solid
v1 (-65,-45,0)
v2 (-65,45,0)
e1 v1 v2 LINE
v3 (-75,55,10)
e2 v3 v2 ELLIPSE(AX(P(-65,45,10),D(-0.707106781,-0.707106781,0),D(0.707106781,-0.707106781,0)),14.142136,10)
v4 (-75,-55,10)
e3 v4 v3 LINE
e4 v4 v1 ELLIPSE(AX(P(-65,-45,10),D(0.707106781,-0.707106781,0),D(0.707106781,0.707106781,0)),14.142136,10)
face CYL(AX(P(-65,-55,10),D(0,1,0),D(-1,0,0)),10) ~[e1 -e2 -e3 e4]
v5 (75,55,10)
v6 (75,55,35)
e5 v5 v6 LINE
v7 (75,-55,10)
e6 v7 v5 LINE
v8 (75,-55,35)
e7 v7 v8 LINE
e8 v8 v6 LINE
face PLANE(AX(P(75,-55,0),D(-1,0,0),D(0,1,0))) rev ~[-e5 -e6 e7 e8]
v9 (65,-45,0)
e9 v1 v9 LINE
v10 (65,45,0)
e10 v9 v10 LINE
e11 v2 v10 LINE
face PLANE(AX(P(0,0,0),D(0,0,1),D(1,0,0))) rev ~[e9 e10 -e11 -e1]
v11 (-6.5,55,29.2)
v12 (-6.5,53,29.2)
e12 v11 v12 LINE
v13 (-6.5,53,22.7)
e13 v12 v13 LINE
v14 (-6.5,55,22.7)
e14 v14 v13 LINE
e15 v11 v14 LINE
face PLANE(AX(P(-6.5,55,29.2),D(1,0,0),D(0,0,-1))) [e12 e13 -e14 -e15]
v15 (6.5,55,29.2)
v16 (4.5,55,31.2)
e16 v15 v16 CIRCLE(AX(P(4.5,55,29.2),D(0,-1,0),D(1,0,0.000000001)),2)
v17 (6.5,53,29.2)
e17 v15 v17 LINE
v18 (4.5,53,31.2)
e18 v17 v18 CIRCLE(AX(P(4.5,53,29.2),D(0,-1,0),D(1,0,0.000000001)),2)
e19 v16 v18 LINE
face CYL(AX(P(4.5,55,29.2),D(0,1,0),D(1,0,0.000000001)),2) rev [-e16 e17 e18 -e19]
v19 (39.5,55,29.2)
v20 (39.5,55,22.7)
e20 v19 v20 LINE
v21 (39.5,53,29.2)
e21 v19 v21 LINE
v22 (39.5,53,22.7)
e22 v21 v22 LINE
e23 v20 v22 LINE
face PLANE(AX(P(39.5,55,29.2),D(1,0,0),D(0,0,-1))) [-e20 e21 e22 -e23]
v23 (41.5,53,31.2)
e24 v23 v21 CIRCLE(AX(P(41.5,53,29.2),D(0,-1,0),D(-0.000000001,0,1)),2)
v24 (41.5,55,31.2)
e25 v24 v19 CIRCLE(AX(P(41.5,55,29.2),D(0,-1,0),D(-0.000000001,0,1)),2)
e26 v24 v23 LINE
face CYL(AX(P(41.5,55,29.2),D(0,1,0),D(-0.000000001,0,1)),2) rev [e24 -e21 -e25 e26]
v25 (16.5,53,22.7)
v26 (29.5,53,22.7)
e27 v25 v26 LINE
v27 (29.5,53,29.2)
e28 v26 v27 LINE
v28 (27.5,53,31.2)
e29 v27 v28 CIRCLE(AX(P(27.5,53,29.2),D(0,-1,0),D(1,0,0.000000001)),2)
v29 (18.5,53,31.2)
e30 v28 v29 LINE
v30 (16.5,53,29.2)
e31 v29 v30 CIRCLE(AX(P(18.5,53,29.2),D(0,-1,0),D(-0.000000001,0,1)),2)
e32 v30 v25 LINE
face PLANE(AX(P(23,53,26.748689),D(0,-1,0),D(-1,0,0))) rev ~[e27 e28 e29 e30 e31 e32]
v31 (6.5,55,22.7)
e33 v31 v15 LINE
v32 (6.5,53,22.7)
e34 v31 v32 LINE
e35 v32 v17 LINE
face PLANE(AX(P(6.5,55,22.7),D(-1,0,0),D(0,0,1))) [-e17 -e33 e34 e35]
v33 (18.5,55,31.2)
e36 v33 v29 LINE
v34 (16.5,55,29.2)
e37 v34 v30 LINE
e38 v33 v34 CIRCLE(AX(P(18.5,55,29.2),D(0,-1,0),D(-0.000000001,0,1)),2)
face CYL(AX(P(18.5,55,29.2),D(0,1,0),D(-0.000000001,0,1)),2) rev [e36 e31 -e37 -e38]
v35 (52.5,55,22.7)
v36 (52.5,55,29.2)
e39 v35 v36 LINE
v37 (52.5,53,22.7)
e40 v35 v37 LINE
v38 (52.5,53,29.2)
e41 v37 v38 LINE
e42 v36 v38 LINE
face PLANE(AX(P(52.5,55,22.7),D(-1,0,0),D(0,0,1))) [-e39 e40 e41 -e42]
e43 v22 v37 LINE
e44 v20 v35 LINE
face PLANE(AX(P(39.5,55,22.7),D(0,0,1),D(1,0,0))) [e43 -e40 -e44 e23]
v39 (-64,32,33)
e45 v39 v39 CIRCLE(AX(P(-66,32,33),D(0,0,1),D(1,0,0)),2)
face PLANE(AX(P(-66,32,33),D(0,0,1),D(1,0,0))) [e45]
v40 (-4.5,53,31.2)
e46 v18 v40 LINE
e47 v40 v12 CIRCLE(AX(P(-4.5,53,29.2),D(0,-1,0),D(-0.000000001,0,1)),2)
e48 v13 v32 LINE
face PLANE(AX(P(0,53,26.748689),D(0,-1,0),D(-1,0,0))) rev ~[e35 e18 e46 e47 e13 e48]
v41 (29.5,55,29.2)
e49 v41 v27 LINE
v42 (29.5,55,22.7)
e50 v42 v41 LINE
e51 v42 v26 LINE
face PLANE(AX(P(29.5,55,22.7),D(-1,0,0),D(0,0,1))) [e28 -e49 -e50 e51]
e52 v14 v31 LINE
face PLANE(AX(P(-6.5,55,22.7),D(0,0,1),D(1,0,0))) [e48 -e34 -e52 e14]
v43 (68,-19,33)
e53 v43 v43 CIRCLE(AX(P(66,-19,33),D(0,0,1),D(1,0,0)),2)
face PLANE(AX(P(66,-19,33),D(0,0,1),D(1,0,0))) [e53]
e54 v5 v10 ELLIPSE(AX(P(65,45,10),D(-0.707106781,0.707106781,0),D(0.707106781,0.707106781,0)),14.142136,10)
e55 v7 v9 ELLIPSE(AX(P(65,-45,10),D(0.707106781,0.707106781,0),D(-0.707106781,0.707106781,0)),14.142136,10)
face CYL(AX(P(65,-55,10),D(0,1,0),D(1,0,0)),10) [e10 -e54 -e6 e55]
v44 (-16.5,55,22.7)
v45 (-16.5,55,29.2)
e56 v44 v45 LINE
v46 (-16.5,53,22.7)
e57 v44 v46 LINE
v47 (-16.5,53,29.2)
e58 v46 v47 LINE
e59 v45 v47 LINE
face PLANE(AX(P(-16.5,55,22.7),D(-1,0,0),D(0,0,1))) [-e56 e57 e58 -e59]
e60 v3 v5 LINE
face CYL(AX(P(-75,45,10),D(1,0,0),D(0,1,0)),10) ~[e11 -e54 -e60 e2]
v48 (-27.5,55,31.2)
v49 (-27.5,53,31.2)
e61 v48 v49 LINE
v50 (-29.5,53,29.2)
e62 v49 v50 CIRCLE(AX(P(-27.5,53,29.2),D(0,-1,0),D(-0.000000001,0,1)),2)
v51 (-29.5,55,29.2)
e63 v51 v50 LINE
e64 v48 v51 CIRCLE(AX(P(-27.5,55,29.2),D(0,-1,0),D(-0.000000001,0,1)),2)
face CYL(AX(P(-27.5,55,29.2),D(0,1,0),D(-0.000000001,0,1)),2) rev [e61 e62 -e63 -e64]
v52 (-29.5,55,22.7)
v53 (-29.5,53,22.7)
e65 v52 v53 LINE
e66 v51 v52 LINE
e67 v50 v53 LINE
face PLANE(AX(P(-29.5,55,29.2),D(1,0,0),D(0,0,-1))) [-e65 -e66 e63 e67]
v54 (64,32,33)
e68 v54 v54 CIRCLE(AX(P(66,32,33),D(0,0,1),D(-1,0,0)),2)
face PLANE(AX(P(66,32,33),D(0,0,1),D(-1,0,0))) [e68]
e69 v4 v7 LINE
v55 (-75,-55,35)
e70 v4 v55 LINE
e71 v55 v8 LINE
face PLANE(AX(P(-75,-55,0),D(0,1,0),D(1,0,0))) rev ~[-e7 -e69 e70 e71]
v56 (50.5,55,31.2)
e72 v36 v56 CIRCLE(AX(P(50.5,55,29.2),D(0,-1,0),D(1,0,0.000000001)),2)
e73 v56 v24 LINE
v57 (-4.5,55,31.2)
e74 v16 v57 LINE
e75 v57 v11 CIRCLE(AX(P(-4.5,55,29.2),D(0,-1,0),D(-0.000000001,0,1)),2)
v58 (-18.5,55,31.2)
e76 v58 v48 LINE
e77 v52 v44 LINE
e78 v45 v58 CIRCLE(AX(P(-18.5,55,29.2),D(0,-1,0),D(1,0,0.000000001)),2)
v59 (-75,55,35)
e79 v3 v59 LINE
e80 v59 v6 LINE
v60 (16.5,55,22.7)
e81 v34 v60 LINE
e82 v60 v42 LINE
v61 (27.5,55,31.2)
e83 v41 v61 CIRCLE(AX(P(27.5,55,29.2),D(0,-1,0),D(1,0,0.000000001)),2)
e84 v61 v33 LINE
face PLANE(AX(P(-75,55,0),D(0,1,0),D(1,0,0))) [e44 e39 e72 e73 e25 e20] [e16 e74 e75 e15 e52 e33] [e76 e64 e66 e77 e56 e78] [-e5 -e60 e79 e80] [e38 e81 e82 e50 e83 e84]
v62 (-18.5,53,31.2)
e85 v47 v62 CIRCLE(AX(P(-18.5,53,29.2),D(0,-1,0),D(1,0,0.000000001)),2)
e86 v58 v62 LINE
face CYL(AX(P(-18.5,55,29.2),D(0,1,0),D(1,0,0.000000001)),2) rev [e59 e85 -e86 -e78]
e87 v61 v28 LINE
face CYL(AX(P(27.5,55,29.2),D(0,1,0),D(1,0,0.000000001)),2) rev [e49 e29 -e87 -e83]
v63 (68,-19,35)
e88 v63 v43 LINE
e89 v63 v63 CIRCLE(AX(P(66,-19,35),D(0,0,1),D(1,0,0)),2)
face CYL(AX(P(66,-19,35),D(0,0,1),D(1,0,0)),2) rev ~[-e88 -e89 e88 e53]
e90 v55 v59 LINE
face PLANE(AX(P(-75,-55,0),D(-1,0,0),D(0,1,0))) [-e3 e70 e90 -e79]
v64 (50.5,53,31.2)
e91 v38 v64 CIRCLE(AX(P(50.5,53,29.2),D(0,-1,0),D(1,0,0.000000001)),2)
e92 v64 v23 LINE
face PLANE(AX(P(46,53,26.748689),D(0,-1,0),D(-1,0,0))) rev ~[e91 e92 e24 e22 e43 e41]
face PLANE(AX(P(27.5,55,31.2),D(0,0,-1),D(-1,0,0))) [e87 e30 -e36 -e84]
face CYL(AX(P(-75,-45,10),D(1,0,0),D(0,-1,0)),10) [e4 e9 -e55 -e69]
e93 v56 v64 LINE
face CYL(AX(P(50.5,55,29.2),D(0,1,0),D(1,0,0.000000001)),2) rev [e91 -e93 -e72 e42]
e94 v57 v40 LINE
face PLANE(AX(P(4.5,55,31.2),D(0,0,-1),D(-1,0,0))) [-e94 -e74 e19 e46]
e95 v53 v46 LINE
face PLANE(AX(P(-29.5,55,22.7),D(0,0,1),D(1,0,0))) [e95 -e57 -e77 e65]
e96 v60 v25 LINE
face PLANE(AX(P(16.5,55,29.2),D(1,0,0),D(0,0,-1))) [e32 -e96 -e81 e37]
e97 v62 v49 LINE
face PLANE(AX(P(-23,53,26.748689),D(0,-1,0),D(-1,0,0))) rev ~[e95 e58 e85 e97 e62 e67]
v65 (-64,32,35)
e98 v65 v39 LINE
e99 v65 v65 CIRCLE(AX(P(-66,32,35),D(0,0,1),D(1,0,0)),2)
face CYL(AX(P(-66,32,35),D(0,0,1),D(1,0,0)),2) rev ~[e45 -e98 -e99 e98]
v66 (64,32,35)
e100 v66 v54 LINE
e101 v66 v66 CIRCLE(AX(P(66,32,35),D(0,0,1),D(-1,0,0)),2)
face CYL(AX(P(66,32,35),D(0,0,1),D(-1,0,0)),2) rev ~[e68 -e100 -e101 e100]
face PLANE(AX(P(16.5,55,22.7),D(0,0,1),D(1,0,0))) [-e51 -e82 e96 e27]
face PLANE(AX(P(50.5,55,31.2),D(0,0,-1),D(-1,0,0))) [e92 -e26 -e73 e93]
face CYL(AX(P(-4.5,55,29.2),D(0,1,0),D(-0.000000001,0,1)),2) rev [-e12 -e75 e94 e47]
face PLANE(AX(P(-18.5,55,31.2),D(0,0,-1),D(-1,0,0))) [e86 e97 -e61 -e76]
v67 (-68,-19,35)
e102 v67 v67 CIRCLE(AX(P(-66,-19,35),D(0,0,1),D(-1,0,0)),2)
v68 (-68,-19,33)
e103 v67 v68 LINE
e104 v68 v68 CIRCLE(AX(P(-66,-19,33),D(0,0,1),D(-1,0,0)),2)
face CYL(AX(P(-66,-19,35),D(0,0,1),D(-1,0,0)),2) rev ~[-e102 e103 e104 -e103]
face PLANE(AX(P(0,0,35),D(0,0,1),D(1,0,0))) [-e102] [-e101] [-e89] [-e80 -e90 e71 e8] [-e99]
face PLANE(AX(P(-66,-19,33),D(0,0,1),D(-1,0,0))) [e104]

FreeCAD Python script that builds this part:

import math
import FreeCAD as App
import Part
import Sketcher
Q = App.Units.Quantity


def edges_at(feature, points):
    """Names of the edges that pass closest to the given points."""
    edges = feature.Shape.Edges
    near = lambda p: min(range(len(edges)), key=lambda i: edges[i].distToShape(Part.Vertex(*p))[0])
    return sorted({f"Edge{near(p) + 1}" for p in points})

doc = App.newDocument("Part")
body = doc.addObject("PartDesign::Body", "Body")

# Sketch on XY plane
sketch1 = doc.addObject("Sketcher::SketchObject", "Sketch")
body.addObject(sketch1)
sketch1.AttachmentSupport = (doc.XY_Plane, [""])
sketch1.MapMode = "FlatFace"
sketch1.addGeometry(Part.LineSegment(App.Vector(-75, 55, 0), App.Vector(-75, -55, 0)), False)
sketch1.addGeometry(Part.LineSegment(App.Vector(-75, -55, 0), App.Vector(75, -55, 0)), False)
sketch1.addGeometry(Part.LineSegment(App.Vector(75, -55, 0), App.Vector(75, 55, 0)), False)
sketch1.addGeometry(Part.LineSegment(App.Vector(75, 55, 0), App.Vector(-75, 55, 0)), False)
sketch1.addConstraint(Sketcher.Constraint("Coincident", 0, 2, 1, 1))
sketch1.addConstraint(Sketcher.Constraint("Coincident", 1, 2, 2, 1))
sketch1.addConstraint(Sketcher.Constraint("Coincident", 2, 2, 3, 1))
sketch1.addConstraint(Sketcher.Constraint("Coincident", 3, 2, 0, 1))
sketch1.addConstraint(Sketcher.Constraint("Vertical", 0))
sketch1.addConstraint(Sketcher.Constraint("Horizontal", 1))
sketch1.addConstraint(Sketcher.Constraint("Vertical", 2))
sketch1.addConstraint(Sketcher.Constraint("Horizontal", 3))
sketch1.addConstraint(Sketcher.Constraint("Symmetric", 0, 2, 2, 2, -1, 1))
sketch1.addConstraint(Sketcher.Constraint("DistanceX", 1, 1, 1, 2, Q("150 mm")))
sketch1.addConstraint(Sketcher.Constraint("DistanceY", 0, 2, 0, 1, Q("110 mm")))
pad1 = doc.addObject("PartDesign::Pad", "Pad")
body.addObject(pad1)
pad1.Profile = sketch1
pad1.Length = 35
doc.recompute()

fillet = doc.addObject("PartDesign::Fillet", "Fillet")
body.addObject(fillet)
fillet.Base = (pad1, edges_at(pad1, [
    (0, 55, 0),
    (75, 0, 0),
    (0, -55, 0),
    (-75, 0, 0),
]))
fillet.Radius = 10

# Sketch on XY plane
sketch2 = doc.addObject("Sketcher::SketchObject", "Sketch001")
body.addObject(sketch2)
sketch2.AttachmentSupport = (doc.XY_Plane, [""])
sketch2.MapMode = "FlatFace"
sketch2.AttachmentOffset = App.Placement(App.Vector(0, 0, 35), App.Rotation())
sketch2.addGeometry(Part.Circle(App.Vector(-66, 32, 0), App.Vector(0, 0, 1), 2), False)
sketch2.addGeometry(Part.Circle(App.Vector(-66, -19, 0), App.Vector(0, 0, 1), 2), False)
sketch2.addGeometry(Part.Circle(App.Vector(66, -19, 0), App.Vector(0, 0, 1), 2), False)
sketch2.addGeometry(Part.Circle(App.Vector(66, 32, 0), App.Vector(0, 0, 1), 2), False)
sketch2.addConstraint(Sketcher.Constraint("Equal", 0, 1))
sketch2.addConstraint(Sketcher.Constraint("Equal", 1, 2))
sketch2.addConstraint(Sketcher.Constraint("Equal", 2, 3))
sketch2.addConstraint(Sketcher.Constraint("Symmetric", 1, 3, 2, 3, -2))
sketch2.addConstraint(Sketcher.Constraint("Symmetric", 0, 3, 3, 3, -2))
sketch2.addConstraint(Sketcher.Constraint("Vertical", 0, 3, 1, 3))
sketch2.addConstraint(Sketcher.Constraint("Diameter", 0, Q("4 mm")))
sketch2.addConstraint(Sketcher.Constraint("DistanceX", 0, 3, -1, 1, Q("66 mm")))
sketch2.addConstraint(Sketcher.Constraint("DistanceY", -1, 1, 0, 3, Q("32 mm")))
sketch2.addConstraint(Sketcher.Constraint("DistanceY", 1, 3, -1, 1, Q("19 mm")))
pocket1 = doc.addObject("PartDesign::Pocket", "Pocket")
body.addObject(pocket1)
pocket1.Profile = sketch2
pocket1.Length = 2

# Sketch on XZ plane
sketch3 = doc.addObject("Sketcher::SketchObject", "Sketch002")
body.addObject(sketch3)
sketch3.AttachmentSupport = (doc.XZ_Plane, [""])
sketch3.MapMode = "FlatFace"
sketch3.AttachmentOffset = App.Placement(App.Vector(0, 0, -55), App.Rotation())
sketch3.addGeometry(Part.LineSegment(App.Vector(6.5, 22.7, 0), App.Vector(-6.5, 22.7, 0)), False)
sketch3.addGeometry(Part.LineSegment(App.Vector(-6.5, 22.7, 0), App.Vector(-6.5, 29.2, 0)), False)
sketch3.addGeometry(Part.ArcOfCircle(Part.Circle(App.Vector(-4.5, 29.2, 0), App.Vector(0, 0, 1), 2), math.radians(90), math.radians(180)), False)
sketch3.addGeometry(Part.LineSegment(App.Vector(-4.5, 31.2, 0), App.Vector(4.5, 31.2, 0)), False)
sketch3.addGeometry(Part.ArcOfCircle(Part.Circle(App.Vector(4.5, 29.2, 0), App.Vector(0, 0, 1), 2), math.radians(0), math.radians(90)), False)
sketch3.addGeometry(Part.LineSegment(App.Vector(6.5, 29.2, 0), App.Vector(6.5, 22.7, 0)), False)
sketch3.addGeometry(Part.LineSegment(App.Vector(29.5, 22.7, 0), App.Vector(16.5, 22.7, 0)), False)
sketch3.addGeometry(Part.LineSegment(App.Vector(16.5, 22.7, 0), App.Vector(16.5, 29.2, 0)), False)
sketch3.addGeometry(Part.ArcOfCircle(Part.Circle(App.Vector(18.5, 29.2, 0), App.Vector(0, 0, 1), 2), math.radians(90), math.radians(180)), False)
sketch3.addGeometry(Part.LineSegment(App.Vector(18.5, 31.2, 0), App.Vector(27.5, 31.2, 0)), False)
sketch3.addGeometry(Part.ArcOfCircle(Part.Circle(App.Vector(27.5, 29.2, 0), App.Vector(0, 0, 1), 2), math.radians(0), math.radians(90)), False)
sketch3.addGeometry(Part.LineSegment(App.Vector(29.5, 29.2, 0), App.Vector(29.5, 22.7, 0)), False)
sketch3.addGeometry(Part.LineSegment(App.Vector(52.5, 22.7, 0), App.Vector(39.5, 22.7, 0)), False)
sketch3.addGeometry(Part.LineSegment(App.Vector(39.5, 22.7, 0), App.Vector(39.5, 29.2, 0)), False)
sketch3.addGeometry(Part.ArcOfCircle(Part.Circle(App.Vector(41.5, 29.2, 0), App.Vector(0, 0, 1), 2), math.radians(90), math.radians(180)), False)
sketch3.addGeometry(Part.LineSegment(App.Vector(41.5, 31.2, 0), App.Vector(50.5, 31.2, 0)), False)
sketch3.addGeometry(Part.ArcOfCircle(Part.Circle(App.Vector(50.5, 29.2, 0), App.Vector(0, 0, 1), 2), math.radians(0), math.radians(90)), False)
sketch3.addGeometry(Part.LineSegment(App.Vector(52.5, 29.2, 0), App.Vector(52.5, 22.7, 0)), False)
sketch3.addGeometry(Part.LineSegment(App.Vector(-16.5, 22.7, 0), App.Vector(-29.5, 22.7, 0)), False)
sketch3.addGeometry(Part.LineSegment(App.Vector(-29.5, 22.7, 0), App.Vector(-29.5, 29.2, 0)), False)
sketch3.addGeometry(Part.ArcOfCircle(Part.Circle(App.Vector(-27.5, 29.2, 0), App.Vector(0, 0, 1), 2), math.radians(90), math.radians(180)), False)
sketch3.addGeometry(Part.LineSegment(App.Vector(-27.5, 31.2, 0), App.Vector(-18.5, 31.2, 0)), False)
sketch3.addGeometry(Part.ArcOfCircle(Part.Circle(App.Vector(-18.5, 29.2, 0), App.Vector(0, 0, 1), 2), math.radians(0), math.radians(90)), False)
sketch3.addGeometry(Part.LineSegment(App.Vector(-16.5, 29.2, 0), App.Vector(-16.5, 22.7, 0)), False)
sketch3.addConstraint(Sketcher.Constraint("Coincident", 0, 2, 1, 1))
sketch3.addConstraint(Sketcher.Constraint("Tangent", 1, 2, 2, 2))
sketch3.addConstraint(Sketcher.Constraint("Tangent", 2, 1, 3, 1))
sketch3.addConstraint(Sketcher.Constraint("Tangent", 3, 2, 4, 2))
sketch3.addConstraint(Sketcher.Constraint("Tangent", 4, 1, 5, 1))
sketch3.addConstraint(Sketcher.Constraint("Coincident", 5, 2, 0, 1))
sketch3.addConstraint(Sketcher.Constraint("Coincident", 6, 2, 7, 1))
sketch3.addConstraint(Sketcher.Constraint("Tangent", 7, 2, 8, 2))
sketch3.addConstraint(Sketcher.Constraint("Tangent", 8, 1, 9, 1))
sketch3.addConstraint(Sketcher.Constraint("Tangent", 9, 2, 10, 2))
sketch3.addConstraint(Sketcher.Constraint("Tangent", 10, 1, 11, 1))
sketch3.addConstraint(Sketcher.Constraint("Coincident", 11, 2, 6, 1))
sketch3.addConstraint(Sketcher.Constraint("Coincident", 12, 2, 13, 1))
sketch3.addConstraint(Sketcher.Constraint("Tangent", 13, 2, 14, 2))
sketch3.addConstraint(Sketcher.Constraint("Tangent", 14, 1, 15, 1))
sketch3.addConstraint(Sketcher.Constraint("Tangent", 15, 2, 16, 2))
sketch3.addConstraint(Sketcher.Constraint("Tangent", 16, 1, 17, 1))
sketch3.addConstraint(Sketcher.Constraint("Coincident", 17, 2, 12, 1))
sketch3.addConstraint(Sketcher.Constraint("Coincident", 18, 2, 19, 1))
sketch3.addConstraint(Sketcher.Constraint("Tangent", 19, 2, 20, 2))
sketch3.addConstraint(Sketcher.Constraint("Tangent", 20, 1, 21, 1))
sketch3.addConstraint(Sketcher.Constraint("Tangent", 21, 2, 22, 2))
sketch3.addConstraint(Sketcher.Constraint("Tangent", 22, 1, 23, 1))
sketch3.addConstraint(Sketcher.Constraint("Coincident", 23, 2, 18, 1))
sketch3.addConstraint(Sketcher.Constraint("Horizontal", 0))
sketch3.addConstraint(Sketcher.Constraint("Vertical", 1))
sketch3.addConstraint(Sketcher.Constraint("Horizontal", 3))
sketch3.addConstraint(Sketcher.Constraint("Vertical", 5))
sketch3.addConstraint(Sketcher.Constraint("Horizontal", 6))
sketch3.addConstraint(Sketcher.Constraint("Vertical", 7))
sketch3.addConstraint(Sketcher.Constraint("Horizontal", 9))
sketch3.addConstraint(Sketcher.Constraint("Vertical", 11))
sketch3.addConstraint(Sketcher.Constraint("Horizontal", 12))
sketch3.addConstraint(Sketcher.Constraint("Vertical", 13))
sketch3.addConstraint(Sketcher.Constraint("Horizontal", 15))
sketch3.addConstraint(Sketcher.Constraint("Vertical", 17))
sketch3.addConstraint(Sketcher.Constraint("Horizontal", 18))
sketch3.addConstraint(Sketcher.Constraint("Vertical", 19))
sketch3.addConstraint(Sketcher.Constraint("Horizontal", 21))
sketch3.addConstraint(Sketcher.Constraint("Vertical", 23))
sketch3.addConstraint(Sketcher.Constraint("Equal", 2, 4))
sketch3.addConstraint(Sketcher.Constraint("Equal", 4, 8))
sketch3.addConstraint(Sketcher.Constraint("Equal", 8, 10))
sketch3.addConstraint(Sketcher.Constraint("Equal", 10, 14))
sketch3.addConstraint(Sketcher.Constraint("Equal", 14, 16))
sketch3.addConstraint(Sketcher.Constraint("Equal", 16, 20))
sketch3.addConstraint(Sketcher.Constraint("Equal", 20, 22))
sketch3.addConstraint(Sketcher.Constraint("Symmetric", 10, 3, 20, 3, -2))
sketch3.addConstraint(Sketcher.Constraint("Symmetric", 6, 2, 23, 2, -2))
sketch3.addConstraint(Sketcher.Constraint("Horizontal", 4, 3, 8, 3))
sketch3.addConstraint(Sketcher.Constraint("Horizontal", 10, 3, 14, 3))
sketch3.addConstraint(Sketcher.Constraint("Horizontal", 5, 2, 6, 2))
sketch3.addConstraint(Sketcher.Constraint("Horizontal", 11, 2, 12, 2))
sketch3.addConstraint(Sketcher.Constraint("Equal", 0, 6))
sketch3.addConstraint(Sketcher.Constraint("Equal", 6, 12))
sketch3.addConstraint(Sketcher.Constraint("Radius", 2, Q("2 mm")))
sketch3.addConstraint(Sketcher.Constraint("DistanceX", 0, 2, 0, 1, Q("13 mm")))
sketch3.addConstraint(Sketcher.Constraint("DistanceY", 1, 1, 1, 2, Q("6.5 mm")))
sketch3.addConstraint(Sketcher.Constraint("DistanceX", 4, 3, 8, 3, Q("14 mm")))
sketch3.addConstraint(Sketcher.Constraint("DistanceX", 10, 3, 14, 3, Q("14 mm")))
sketch3.addConstraint(Sketcher.Constraint("DistanceX", 20, 3, 2, 3, Q("23 mm")))
sketch3.addConstraint(Sketcher.Constraint("DistanceY", -1, 1, 2, 3, Q("29.2 mm")))
pocket2 = doc.addObject("PartDesign::Pocket", "Pocket001")
body.addObject(pocket2)
pocket2.Profile = sketch3
pocket2.Length = 2
pocket2.Reversed = True

doc.recompute()
